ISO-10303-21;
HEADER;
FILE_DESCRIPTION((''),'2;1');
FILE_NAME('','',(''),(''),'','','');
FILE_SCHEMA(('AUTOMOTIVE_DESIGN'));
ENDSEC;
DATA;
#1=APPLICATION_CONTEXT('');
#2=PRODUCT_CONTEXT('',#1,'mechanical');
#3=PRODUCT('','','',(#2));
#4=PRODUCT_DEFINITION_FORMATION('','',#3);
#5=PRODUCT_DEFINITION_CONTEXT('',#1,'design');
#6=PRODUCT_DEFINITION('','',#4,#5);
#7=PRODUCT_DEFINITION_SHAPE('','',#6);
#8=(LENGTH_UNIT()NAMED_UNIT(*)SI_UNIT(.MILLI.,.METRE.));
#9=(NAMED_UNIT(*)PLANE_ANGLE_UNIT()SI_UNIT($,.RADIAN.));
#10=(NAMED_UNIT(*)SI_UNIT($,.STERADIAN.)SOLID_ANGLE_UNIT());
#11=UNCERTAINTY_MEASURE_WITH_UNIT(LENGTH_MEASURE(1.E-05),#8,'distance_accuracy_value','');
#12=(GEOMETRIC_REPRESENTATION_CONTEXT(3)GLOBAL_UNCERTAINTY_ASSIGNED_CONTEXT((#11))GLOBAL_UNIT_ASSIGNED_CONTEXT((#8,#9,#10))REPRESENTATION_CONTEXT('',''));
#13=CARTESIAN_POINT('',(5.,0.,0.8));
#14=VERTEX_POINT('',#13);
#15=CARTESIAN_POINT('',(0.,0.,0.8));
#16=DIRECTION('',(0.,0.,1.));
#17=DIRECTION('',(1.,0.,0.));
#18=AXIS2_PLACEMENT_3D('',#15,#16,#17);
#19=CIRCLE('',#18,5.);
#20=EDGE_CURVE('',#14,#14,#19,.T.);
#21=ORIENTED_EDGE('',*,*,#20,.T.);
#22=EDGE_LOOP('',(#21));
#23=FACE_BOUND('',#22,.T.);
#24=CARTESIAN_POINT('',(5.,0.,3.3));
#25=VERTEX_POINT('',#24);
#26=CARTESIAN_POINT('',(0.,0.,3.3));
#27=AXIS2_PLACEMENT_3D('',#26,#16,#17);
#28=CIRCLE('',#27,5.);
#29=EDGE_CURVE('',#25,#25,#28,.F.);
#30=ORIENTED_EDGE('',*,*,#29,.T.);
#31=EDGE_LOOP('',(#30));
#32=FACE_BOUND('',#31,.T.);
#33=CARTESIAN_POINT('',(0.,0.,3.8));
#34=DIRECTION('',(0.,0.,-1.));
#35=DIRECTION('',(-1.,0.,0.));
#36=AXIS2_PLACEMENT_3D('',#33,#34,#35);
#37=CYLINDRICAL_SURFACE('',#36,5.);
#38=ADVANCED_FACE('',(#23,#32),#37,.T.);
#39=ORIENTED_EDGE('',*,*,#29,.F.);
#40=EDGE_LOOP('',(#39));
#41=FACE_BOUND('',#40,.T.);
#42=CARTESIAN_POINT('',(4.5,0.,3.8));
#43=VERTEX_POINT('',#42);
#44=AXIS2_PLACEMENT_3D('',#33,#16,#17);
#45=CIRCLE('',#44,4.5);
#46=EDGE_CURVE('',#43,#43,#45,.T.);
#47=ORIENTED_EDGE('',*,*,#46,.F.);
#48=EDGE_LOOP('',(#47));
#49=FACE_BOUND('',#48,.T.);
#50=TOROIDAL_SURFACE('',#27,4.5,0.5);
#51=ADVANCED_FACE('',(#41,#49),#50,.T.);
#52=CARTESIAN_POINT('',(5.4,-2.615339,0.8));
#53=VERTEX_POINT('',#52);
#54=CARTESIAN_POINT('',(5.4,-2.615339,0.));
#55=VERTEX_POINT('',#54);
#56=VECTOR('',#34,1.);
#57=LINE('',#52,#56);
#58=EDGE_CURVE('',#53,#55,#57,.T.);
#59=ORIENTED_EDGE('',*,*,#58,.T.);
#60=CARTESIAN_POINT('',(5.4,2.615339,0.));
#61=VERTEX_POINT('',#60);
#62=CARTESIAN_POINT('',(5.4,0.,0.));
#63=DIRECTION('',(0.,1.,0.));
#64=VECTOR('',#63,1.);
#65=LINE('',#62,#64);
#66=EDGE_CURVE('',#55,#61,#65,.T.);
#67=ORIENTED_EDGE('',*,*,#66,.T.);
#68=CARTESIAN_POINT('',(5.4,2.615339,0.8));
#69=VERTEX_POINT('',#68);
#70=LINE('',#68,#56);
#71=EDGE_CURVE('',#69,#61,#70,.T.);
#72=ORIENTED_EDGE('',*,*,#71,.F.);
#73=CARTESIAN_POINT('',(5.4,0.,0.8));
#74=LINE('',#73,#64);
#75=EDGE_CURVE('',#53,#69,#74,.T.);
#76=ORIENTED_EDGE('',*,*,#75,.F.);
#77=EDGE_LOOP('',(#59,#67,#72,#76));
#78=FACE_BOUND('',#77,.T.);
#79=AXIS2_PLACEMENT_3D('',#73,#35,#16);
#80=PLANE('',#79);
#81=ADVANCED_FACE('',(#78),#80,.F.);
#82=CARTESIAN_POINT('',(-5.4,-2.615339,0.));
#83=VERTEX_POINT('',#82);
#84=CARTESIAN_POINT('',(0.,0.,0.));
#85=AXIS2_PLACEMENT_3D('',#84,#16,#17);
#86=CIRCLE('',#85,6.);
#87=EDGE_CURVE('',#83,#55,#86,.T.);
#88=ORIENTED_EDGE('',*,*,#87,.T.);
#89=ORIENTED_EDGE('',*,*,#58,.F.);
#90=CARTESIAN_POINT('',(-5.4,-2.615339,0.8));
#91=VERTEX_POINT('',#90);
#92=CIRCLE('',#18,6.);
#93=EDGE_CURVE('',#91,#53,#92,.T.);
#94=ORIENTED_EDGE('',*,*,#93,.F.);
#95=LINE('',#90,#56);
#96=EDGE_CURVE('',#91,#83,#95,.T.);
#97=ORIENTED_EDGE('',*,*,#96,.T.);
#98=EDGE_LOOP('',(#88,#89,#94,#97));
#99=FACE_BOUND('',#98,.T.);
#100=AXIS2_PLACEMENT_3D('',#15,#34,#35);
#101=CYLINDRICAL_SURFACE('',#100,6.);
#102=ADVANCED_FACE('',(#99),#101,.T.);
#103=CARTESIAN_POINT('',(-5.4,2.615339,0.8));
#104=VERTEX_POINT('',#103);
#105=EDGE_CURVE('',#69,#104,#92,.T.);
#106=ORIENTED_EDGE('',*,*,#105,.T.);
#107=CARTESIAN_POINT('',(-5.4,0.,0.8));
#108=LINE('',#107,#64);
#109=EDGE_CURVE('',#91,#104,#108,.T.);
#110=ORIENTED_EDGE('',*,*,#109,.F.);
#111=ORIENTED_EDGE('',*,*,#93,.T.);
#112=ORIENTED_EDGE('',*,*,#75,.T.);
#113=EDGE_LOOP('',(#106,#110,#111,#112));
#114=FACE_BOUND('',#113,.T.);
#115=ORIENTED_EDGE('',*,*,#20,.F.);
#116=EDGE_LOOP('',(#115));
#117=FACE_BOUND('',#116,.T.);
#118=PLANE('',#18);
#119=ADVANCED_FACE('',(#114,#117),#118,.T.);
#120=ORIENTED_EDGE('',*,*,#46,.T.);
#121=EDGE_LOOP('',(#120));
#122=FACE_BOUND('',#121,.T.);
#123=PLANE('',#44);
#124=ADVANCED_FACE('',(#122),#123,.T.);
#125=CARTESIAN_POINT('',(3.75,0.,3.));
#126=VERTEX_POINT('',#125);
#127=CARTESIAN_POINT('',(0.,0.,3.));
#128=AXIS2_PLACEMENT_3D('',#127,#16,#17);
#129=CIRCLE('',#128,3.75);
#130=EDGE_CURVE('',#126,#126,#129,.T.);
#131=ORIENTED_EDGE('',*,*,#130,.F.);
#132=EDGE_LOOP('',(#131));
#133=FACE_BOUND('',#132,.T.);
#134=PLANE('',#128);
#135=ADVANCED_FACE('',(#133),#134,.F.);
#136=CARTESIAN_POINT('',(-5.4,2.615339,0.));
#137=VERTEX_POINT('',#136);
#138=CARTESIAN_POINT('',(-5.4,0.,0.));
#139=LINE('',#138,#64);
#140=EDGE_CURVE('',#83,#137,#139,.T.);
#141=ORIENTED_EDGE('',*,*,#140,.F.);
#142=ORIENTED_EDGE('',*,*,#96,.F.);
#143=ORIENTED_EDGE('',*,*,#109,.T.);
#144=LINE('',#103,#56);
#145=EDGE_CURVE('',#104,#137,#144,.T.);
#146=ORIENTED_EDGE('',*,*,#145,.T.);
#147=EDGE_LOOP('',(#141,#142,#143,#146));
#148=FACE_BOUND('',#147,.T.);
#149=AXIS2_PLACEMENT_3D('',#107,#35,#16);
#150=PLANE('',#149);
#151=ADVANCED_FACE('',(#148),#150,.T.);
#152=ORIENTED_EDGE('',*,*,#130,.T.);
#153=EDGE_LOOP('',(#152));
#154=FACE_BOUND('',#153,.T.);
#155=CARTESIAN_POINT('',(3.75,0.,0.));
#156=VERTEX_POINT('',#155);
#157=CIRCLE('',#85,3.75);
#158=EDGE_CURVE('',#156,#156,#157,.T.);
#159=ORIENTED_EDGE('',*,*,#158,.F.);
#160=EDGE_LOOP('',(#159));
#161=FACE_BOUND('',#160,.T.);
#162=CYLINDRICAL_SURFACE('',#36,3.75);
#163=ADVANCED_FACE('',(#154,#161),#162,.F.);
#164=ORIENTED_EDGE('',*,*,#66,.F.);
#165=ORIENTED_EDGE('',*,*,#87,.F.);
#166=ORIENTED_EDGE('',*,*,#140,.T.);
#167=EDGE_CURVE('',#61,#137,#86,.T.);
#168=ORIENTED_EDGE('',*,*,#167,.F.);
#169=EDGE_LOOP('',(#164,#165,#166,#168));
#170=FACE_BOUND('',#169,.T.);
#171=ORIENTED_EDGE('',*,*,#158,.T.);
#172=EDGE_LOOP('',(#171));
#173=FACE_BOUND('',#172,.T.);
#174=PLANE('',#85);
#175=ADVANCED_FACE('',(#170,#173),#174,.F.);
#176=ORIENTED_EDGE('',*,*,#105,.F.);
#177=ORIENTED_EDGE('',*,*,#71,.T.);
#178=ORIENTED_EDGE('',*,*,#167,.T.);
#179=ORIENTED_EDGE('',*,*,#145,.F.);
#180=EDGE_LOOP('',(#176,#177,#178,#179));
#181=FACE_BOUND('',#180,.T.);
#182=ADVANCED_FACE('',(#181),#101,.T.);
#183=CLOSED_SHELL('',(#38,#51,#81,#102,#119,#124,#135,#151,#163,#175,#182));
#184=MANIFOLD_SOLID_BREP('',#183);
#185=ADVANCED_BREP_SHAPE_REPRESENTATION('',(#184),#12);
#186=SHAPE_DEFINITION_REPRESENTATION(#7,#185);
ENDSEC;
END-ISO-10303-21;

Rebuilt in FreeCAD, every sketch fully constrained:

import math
import FreeCAD as App
import Part
import Sketcher
from FreeCAD import Vector


def edges_at(feature, points):
    """Names of the edges that pass closest to the given points."""
    edges = feature.Shape.Edges
    near = lambda p: min(range(len(edges)), key=lambda i: edges[i].distToShape(Part.Vertex(*p))[0])
    return sorted({f"Edge{near(p) + 1}" for p in points})

doc = App.newDocument("Part")
body = doc.addObject("PartDesign::Body", "Body")

sketch1 = body.newObject("Sketcher::SketchObject", "Sketch")
sketch1.AttachmentSupport = (doc.getObject("XY_Plane"), [""])
sketch1.MapMode = "FlatFace"
sketch1.addGeometry([
    Part.LineSegment(Vector(-5.4, 2.615339, 0), Vector(-5.4, -2.615339, 0)),
    Part.ArcOfCircle(Part.Circle(Vector(0, 0, 0), Vector(0, 0, 1), 6), math.radians(-154.158067), math.radians(-25.841933)),
    Part.LineSegment(Vector(5.4, -2.615339, 0), Vector(5.4, 2.615339, 0)),
    Part.ArcOfCircle(Part.Circle(Vector(0, 0, 0), Vector(0, 0, 1), 6), math.radians(25.841933), math.radians(154.158067)),
    Part.Circle(Vector(0, 0, 0), Vector(0, 0, 1), 5),
], False)
sketch1.addConstraint([
    Sketcher.Constraint("Coincident", 0, 2, 1, 1),
    Sketcher.Constraint("Coincident", 1, 2, 2, 1),
    Sketcher.Constraint("Coincident", 2, 2, 3, 1),
    Sketcher.Constraint("Coincident", 3, 2, 0, 1),
    Sketcher.Constraint("Vertical", 0),
    Sketcher.Constraint("Vertical", 2),
    Sketcher.Constraint("Coincident", 1, 3, -1, 1),
    Sketcher.Constraint("Coincident", 3, 3, -1, 1),
    Sketcher.Constraint("Coincident", 4, 3, -1, 1),
    Sketcher.Constraint("Equal", 1, 3),
    Sketcher.Constraint("Horizontal", 0, 2, 1, 2),
    Sketcher.Constraint("Diameter", 4, 10.0),
    Sketcher.Constraint("Radius", 1, 6.0),
    Sketcher.Constraint("DistanceX", 0, 2, -1, 1, 5.4),
])
pad1 = body.newObject("PartDesign::Pad", "Pad")
pad1.Profile = sketch1
pad1.Length = 0.8

sketch2 = body.newObject("Sketcher::SketchObject", "Sketch001")
sketch2.AttachmentSupport = (doc.getObject("XY_Plane"), [""])
sketch2.MapMode = "FlatFace"
sketch2.addGeometry([
    Part.Circle(Vector(0, 0, 0), Vector(0, 0, 1), 5),
    Part.Circle(Vector(0, 0, 0), Vector(0, 0, 1), 3.75),
], False)
sketch2.addConstraint([
    Sketcher.Constraint("Coincident", 0, 3, -1, 1),
    Sketcher.Constraint("Coincident", 1, 3, -1, 1),
    Sketcher.Constraint("Diameter", 0, 10.0),
    Sketcher.Constraint("Diameter", 1, 7.5),
])
pad2 = body.newObject("PartDesign::Pad", "Pad001")
pad2.Profile = sketch2
pad2.Length = 3.8

sketch3 = body.newObject("Sketcher::SketchObject", "Sketch002")
sketch3.AttachmentSupport = (doc.getObject("XY_Plane"), [""])
sketch3.MapMode = "FlatFace"
sketch3.AttachmentOffset = App.Placement(Vector(0, 0, 3.8), App.Rotation())
sketch3.addGeometry(Part.Circle(Vector(0, 0, 0), Vector(0, 0, 1), 3.75), False)
sketch3.addConstraint([
    Sketcher.Constraint("Coincident", 0, 3, -1, 1),
    Sketcher.Constraint("Diameter", 0, 7.5),
])
pad3 = body.newObject("PartDesign::Pad", "Pad002")
pad3.Profile = sketch3
pad3.Length = 0.8
pad3.Reversed = True
doc.recompute()

fillet = body.newObject("PartDesign::Fillet", "Fillet")
fillet.Base = (pad3, edges_at(pad3, [(-5, 0, 3.8)]))
fillet.Radius = 0.5

doc.recompute()
